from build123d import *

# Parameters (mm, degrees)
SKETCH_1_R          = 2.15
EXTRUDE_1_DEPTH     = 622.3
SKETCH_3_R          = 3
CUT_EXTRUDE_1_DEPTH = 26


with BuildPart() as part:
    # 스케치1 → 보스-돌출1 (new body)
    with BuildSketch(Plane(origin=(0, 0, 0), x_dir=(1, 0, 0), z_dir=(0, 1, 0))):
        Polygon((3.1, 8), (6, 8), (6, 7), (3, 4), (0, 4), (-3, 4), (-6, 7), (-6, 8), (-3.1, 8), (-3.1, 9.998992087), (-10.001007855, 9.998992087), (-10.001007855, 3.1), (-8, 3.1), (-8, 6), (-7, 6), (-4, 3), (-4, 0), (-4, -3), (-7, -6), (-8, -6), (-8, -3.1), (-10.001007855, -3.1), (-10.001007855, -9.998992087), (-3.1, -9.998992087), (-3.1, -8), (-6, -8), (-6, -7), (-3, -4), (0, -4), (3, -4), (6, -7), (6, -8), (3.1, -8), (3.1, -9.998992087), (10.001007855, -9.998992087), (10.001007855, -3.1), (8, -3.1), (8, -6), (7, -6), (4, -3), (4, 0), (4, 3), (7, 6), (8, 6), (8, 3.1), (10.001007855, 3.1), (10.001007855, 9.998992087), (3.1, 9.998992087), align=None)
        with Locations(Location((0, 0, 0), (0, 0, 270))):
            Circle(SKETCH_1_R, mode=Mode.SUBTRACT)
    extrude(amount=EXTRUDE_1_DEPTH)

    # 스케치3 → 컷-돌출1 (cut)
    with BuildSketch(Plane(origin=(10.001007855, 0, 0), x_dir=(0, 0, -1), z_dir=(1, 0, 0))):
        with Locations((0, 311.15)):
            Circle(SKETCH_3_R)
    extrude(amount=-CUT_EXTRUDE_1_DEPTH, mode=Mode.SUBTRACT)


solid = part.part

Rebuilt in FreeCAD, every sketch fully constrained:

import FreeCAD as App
import Part
import Sketcher

V = App.Vector

doc = App.newDocument("Part")
body = doc.addObject("PartDesign::Body", "Body")

sketch1 = body.newObject("Sketcher::SketchObject", "Sketch")
sketch1.AttachmentSupport = (doc.getObject("XZ_Plane"), [""])
sketch1.MapMode = "FlatFace"
sketch1.addGeometry([
    Part.LineSegment(V(3.1, -8, 0), V(6, -8, 0)),
    Part.LineSegment(V(6, -8, 0), V(6, -7, 0)),
    Part.LineSegment(V(6, -7, 0), V(3, -4, 0)),
    Part.LineSegment(V(3, -4, 0), V(-3, -4, 0)),
    Part.LineSegment(V(-3, -4, 0), V(-6, -7, 0)),
    Part.LineSegment(V(-6, -7, 0), V(-6, -8, 0)),
    Part.LineSegment(V(-6, -8, 0), V(-3.1, -8, 0)),
    Part.LineSegment(V(-3.1, -8, 0), V(-3.1, -10, 0)),
    Part.LineSegment(V(-3.1, -10, 0), V(-10, -10, 0)),
    Part.LineSegment(V(-10, -10, 0), V(-10, -3.1, 0)),
    Part.LineSegment(V(-10, -3.1, 0), V(-8, -3.1, 0)),
    Part.LineSegment(V(-8, -3.1, 0), V(-8, -6, 0)),
    Part.LineSegment(V(-8, -6, 0), V(-7, -6, 0)),
    Part.LineSegment(V(-7, -6, 0), V(-4, -3, 0)),
    Part.LineSegment(V(-4, -3, 0), V(-4, 3, 0)),
    Part.LineSegment(V(-4, 3, 0), V(-7, 6, 0)),
    Part.LineSegment(V(-7, 6, 0), V(-8, 6, 0)),
    Part.LineSegment(V(-8, 6, 0), V(-8, 3.1, 0)),
    Part.LineSegment(V(-8, 3.1, 0), V(-10, 3.1, 0)),
    Part.LineSegment(V(-10, 3.1, 0), V(-10, 10, 0)),
    Part.LineSegment(V(-10, 10, 0), V(-3.1, 10, 0)),
    Part.LineSegment(V(-3.1, 10, 0), V(-3.1, 8, 0)),
    Part.LineSegment(V(-3.1, 8, 0), V(-6, 8, 0)),
    Part.LineSegment(V(-6, 8, 0), V(-6, 7, 0)),
    Part.LineSegment(V(-6, 7, 0), V(-3, 4, 0)),
    Part.LineSegment(V(-3, 4, 0), V(3, 4, 0)),
    Part.LineSegment(V(3, 4, 0), V(6, 7, 0)),
    Part.LineSegment(V(6, 7, 0), V(6, 8, 0)),
    Part.LineSegment(V(6, 8, 0), V(3.1, 8, 0)),
    Part.LineSegment(V(3.1, 8, 0), V(3.1, 10, 0)),
    Part.LineSegment(V(3.1, 10, 0), V(10, 10, 0)),
    Part.LineSegment(V(10, 10, 0), V(10, 3.1, 0)),
    Part.LineSegment(V(10, 3.1, 0), V(8, 3.1, 0)),
    Part.LineSegment(V(8, 3.1, 0), V(8, 6, 0)),
    Part.LineSegment(V(8, 6, 0), V(7, 6, 0)),
    Part.LineSegment(V(7, 6, 0), V(4, 3, 0)),
    Part.LineSegment(V(4, 3, 0), V(4, -3, 0)),
    Part.LineSegment(V(4, -3, 0), V(7, -6, 0)),
    Part.LineSegment(V(7, -6, 0), V(8, -6, 0)),
    Part.LineSegment(V(8, -6, 0), V(8, -3.1, 0)),
    Part.LineSegment(V(8, -3.1, 0), V(10, -3.1, 0)),
    Part.LineSegment(V(10, -3.1, 0), V(10, -10, 0)),
    Part.LineSegment(V(10, -10, 0), V(3.1, -10, 0)),
    Part.LineSegment(V(3.1, -10, 0), V(3.1, -8, 0)),
    Part.Circle(V(0, 0, 0), V(0, 0, 1), 2.1),
], False)
sketch1.addConstraint([
    Sketcher.Constraint("Coincident", 0, 2, 1, 1),
    Sketcher.Constraint("Coincident", 1, 2, 2, 1),
    Sketcher.Constraint("Coincident", 2, 2, 3, 1),
    Sketcher.Constraint("Coincident", 3, 2, 4, 1),
    Sketcher.Constraint("Coincident", 4, 2, 5, 1),
    Sketcher.Constraint("Coincident", 5, 2, 6, 1),
    Sketcher.Constraint("Coincident", 6, 2, 7, 1),
    Sketcher.Constraint("Coincident", 7, 2, 8, 1),
    Sketcher.Constraint("Coincident", 8, 2, 9, 1),
    Sketcher.Constraint("Coincident", 9, 2, 10, 1),
    Sketcher.Constraint("Coincident", 10, 2, 11, 1),
    Sketcher.Constraint("Coincident", 11, 2, 12, 1),
    Sketcher.Constraint("Coincident", 12, 2, 13, 1),
    Sketcher.Constraint("Coincident", 13, 2, 14, 1),
    Sketcher.Constraint("Coincident", 14, 2, 15, 1),
    Sketcher.Constraint("Coincident", 15, 2, 16, 1),
    Sketcher.Constraint("Coincident", 16, 2, 17, 1),
    Sketcher.Constraint("Coincident", 17, 2, 18, 1),
    Sketcher.Constraint("Coincident", 18, 2, 19, 1),
    Sketcher.Constraint("Coincident", 19, 2, 20, 1),
    Sketcher.Constraint("Coincident", 20, 2, 21, 1),
    Sketcher.Constraint("Coincident", 21, 2, 22, 1),
    Sketcher.Constraint("Coincident", 22, 2, 23, 1),
    Sketcher.Constraint("Coincident", 23, 2, 24, 1),
    Sketcher.Constraint("Coincident", 24, 2, 25, 1),
    Sketcher.Constraint("Coincident", 25, 2, 26, 1),
    Sketcher.Constraint("Coincident", 26, 2, 27, 1),
    Sketcher.Constraint("Coincident", 27, 2, 28, 1),
    Sketcher.Constraint("Coincident", 28, 2, 29, 1),
    Sketcher.Constraint("Coincident", 29, 2, 30, 1),
    Sketcher.Constraint("Coincident", 30, 2, 31, 1),
    Sketcher.Constraint("Coincident", 31, 2, 32, 1),
    Sketcher.Constraint("Coincident", 32, 2, 33, 1),
    Sketcher.Constraint("Coincident", 33, 2, 34, 1),
    Sketcher.Constraint("Coincident", 34, 2, 35, 1),
    Sketcher.Constraint("Coincident", 35, 2, 36, 1),
    Sketcher.Constraint("Coincident", 36, 2, 37, 1),
    Sketcher.Constraint("Coincident", 37, 2, 38, 1),
    Sketcher.Constraint("Coincident", 38, 2, 39, 1),
    Sketcher.Constraint("Coincident", 39, 2, 40, 1),
    Sketcher.Constraint("Coincident", 40, 2, 41, 1),
    Sketcher.Constraint("Coincident", 41, 2, 42, 1),
    Sketcher.Constraint("Coincident", 42, 2, 43, 1),
    Sketcher.Constraint("Coincident", 43, 2, 0, 1),
    Sketcher.Constraint("Horizontal", 0),
    Sketcher.Constraint("Vertical", 1),
    Sketcher.Constraint("Horizontal", 3),
    Sketcher.Constraint("Vertical", 5),
    Sketcher.Constraint("Horizontal", 6),
    Sketcher.Constraint("Vertical", 7),
    Sketcher.Constraint("Horizontal", 8),
    Sketcher.Constraint("Vertical", 9),
    Sketcher.Constraint("Horizontal", 10),
    Sketcher.Constraint("Vertical", 11),
    Sketcher.Constraint("Horizontal", 12),
    Sketcher.Constraint("Vertical", 14),
    Sketcher.Constraint("Horizontal", 16),
    Sketcher.Constraint("Vertical", 17),
    Sketcher.Constraint("Horizontal", 18),
    Sketcher.Constraint("Vertical", 19),
    Sketcher.Constraint("Horizontal", 20),
    Sketcher.Constraint("Vertical", 21),
    Sketcher.Constraint("Horizontal", 22),
    Sketcher.Constraint("Vertical", 23),
    Sketcher.Constraint("Horizontal", 25),
    Sketcher.Constraint("Vertical", 27),
    Sketcher.Constraint("Horizontal", 28),
    Sketcher.Constraint("Vertical", 29),
    Sketcher.Constraint("Horizontal", 30),
    Sketcher.Constraint("Vertical", 31),
    Sketcher.Constraint("Horizontal", 32),
    Sketcher.Constraint("Vertical", 33),
    Sketcher.Constraint("Horizontal", 34),
    Sketcher.Constraint("Vertical", 36),
    Sketcher.Constraint("Horizontal", 38),
    Sketcher.Constraint("Vertical", 39),
    Sketcher.Constraint("Horizontal", 40),
    Sketcher.Constraint("Vertical", 41),
    Sketcher.Constraint("Horizontal", 42),
    Sketcher.Constraint("Vertical", 43),
    Sketcher.Constraint("Coincident", 44, 3, -1, 1),
    Sketcher.Constraint("Symmetric", 0, 2, 22, 2, -1, 1),
    Sketcher.Constraint("Symmetric", 2, 2, 24, 2, -1, 1),
    Sketcher.Constraint("Symmetric", 4, 2, 26, 2, -1, 1),
    Sketcher.Constraint("Symmetric", 6, 2, 28, 2, -1, 1),
    Sketcher.Constraint("Symmetric", 8, 2, 30, 2, -1, 1),
    Sketcher.Constraint("Symmetric", 10, 2, 32, 2, -1, 1),
    Sketcher.Constraint("Symmetric", 12, 2, 34, 2, -1, 1),
    Sketcher.Constraint("Symmetric", 13, 2, 35, 2, -1, 1),
    Sketcher.Constraint("Symmetric", 15, 2, 37, 2, -1, 1),
    Sketcher.Constraint("Symmetric", 17, 2, 39, 2, -1, 1),
    Sketcher.Constraint("Symmetric", 19, 2, 41, 2, -1, 1),
    Sketcher.Constraint("Symmetric", 1, 2, 4, 2, -2),
    Sketcher.Constraint("Symmetric", 21, 2, 28, 2, -2),
    Sketcher.Constraint("Symmetric", 19, 2, 30, 2, -2),
    Sketcher.Constraint("Symmetric", 17, 2, 32, 2, -2),
    Sketcher.Constraint("Symmetric", 15, 2, 34, 2, -2),
    Sketcher.Constraint("Perpendicular", 2, 4),
    Sketcher.Constraint("Parallel", 4, 13),
    Sketcher.Constraint("Perpendicular", 13, 15),
    Sketcher.Constraint("Parallel", 15, 24),
    Sketcher.Constraint("Perpendicular", 24, 26),
    Sketcher.Constraint("Perpendicular", 35, 37),
    Sketcher.Constraint("Horizontal", 14, 2, 35, 2),
    Sketcher.Constraint("Vertical", 29, 2, 42, 2),
    Sketcher.Constraint("Equal", 38, 1),
    Sketcher.Constraint("Equal", 28, 11),
    Sketcher.Constraint("Equal", 25, 14),
    Sketcher.Constraint("Equal", 4, 13),
    Sketcher.Constraint("Diameter", 44, 4.3),
    Sketcher.Constraint("DistanceX", 3, 2, 3, 1, 6.0),
    Sketcher.Constraint("DistanceX", 12, 1, 12, 2, 1.0),
    Sketcher.Constraint("DistanceX", 0, 1, 0, 2, 2.9),
    Sketcher.Constraint("DistanceX", -1, 1, 0, 2, 6.0),
    Sketcher.Constraint("DistanceY", 0, 2, -1, 1, 8.0),
    Sketcher.Constraint("DistanceX", 10, 2, -1, 1, 8.0),
    Sketcher.Constraint("DistanceX", 8, 2, 8, 1, 6.901008),
    Sketcher.Constraint("DistanceY", 7, 2, 7, 1, 1.998992),
])
pad1 = body.newObject("PartDesign::Pad", "Pad")
pad1.Profile = sketch1
pad1.Length = 622.3
pad1.Reversed = True

sketch2 = body.newObject("Sketcher::SketchObject", "Sketch001")
sketch2.AttachmentSupport = (doc.getObject("YZ_Plane"), [""])
sketch2.MapMode = "FlatFace"
sketch2.AttachmentOffset = App.Placement(V(0, 0, 10.001008), App.Rotation())
sketch2.addGeometry(Part.Circle(V(311.1, 0, 0), V(0, 0, 1), 3), False)
sketch2.addConstraint([
    Sketcher.Constraint("PointOnObject", 0, 3, -1),
    Sketcher.Constraint("Diameter", 0, 6.0),
    Sketcher.Constraint("DistanceX", -1, 1, 0, 3, 311.15),
])
pocket1 = body.newObject("PartDesign::Pocket", "Pocket")
pocket1.Profile = sketch2
pocket1.Length = 26

doc.recompute()
